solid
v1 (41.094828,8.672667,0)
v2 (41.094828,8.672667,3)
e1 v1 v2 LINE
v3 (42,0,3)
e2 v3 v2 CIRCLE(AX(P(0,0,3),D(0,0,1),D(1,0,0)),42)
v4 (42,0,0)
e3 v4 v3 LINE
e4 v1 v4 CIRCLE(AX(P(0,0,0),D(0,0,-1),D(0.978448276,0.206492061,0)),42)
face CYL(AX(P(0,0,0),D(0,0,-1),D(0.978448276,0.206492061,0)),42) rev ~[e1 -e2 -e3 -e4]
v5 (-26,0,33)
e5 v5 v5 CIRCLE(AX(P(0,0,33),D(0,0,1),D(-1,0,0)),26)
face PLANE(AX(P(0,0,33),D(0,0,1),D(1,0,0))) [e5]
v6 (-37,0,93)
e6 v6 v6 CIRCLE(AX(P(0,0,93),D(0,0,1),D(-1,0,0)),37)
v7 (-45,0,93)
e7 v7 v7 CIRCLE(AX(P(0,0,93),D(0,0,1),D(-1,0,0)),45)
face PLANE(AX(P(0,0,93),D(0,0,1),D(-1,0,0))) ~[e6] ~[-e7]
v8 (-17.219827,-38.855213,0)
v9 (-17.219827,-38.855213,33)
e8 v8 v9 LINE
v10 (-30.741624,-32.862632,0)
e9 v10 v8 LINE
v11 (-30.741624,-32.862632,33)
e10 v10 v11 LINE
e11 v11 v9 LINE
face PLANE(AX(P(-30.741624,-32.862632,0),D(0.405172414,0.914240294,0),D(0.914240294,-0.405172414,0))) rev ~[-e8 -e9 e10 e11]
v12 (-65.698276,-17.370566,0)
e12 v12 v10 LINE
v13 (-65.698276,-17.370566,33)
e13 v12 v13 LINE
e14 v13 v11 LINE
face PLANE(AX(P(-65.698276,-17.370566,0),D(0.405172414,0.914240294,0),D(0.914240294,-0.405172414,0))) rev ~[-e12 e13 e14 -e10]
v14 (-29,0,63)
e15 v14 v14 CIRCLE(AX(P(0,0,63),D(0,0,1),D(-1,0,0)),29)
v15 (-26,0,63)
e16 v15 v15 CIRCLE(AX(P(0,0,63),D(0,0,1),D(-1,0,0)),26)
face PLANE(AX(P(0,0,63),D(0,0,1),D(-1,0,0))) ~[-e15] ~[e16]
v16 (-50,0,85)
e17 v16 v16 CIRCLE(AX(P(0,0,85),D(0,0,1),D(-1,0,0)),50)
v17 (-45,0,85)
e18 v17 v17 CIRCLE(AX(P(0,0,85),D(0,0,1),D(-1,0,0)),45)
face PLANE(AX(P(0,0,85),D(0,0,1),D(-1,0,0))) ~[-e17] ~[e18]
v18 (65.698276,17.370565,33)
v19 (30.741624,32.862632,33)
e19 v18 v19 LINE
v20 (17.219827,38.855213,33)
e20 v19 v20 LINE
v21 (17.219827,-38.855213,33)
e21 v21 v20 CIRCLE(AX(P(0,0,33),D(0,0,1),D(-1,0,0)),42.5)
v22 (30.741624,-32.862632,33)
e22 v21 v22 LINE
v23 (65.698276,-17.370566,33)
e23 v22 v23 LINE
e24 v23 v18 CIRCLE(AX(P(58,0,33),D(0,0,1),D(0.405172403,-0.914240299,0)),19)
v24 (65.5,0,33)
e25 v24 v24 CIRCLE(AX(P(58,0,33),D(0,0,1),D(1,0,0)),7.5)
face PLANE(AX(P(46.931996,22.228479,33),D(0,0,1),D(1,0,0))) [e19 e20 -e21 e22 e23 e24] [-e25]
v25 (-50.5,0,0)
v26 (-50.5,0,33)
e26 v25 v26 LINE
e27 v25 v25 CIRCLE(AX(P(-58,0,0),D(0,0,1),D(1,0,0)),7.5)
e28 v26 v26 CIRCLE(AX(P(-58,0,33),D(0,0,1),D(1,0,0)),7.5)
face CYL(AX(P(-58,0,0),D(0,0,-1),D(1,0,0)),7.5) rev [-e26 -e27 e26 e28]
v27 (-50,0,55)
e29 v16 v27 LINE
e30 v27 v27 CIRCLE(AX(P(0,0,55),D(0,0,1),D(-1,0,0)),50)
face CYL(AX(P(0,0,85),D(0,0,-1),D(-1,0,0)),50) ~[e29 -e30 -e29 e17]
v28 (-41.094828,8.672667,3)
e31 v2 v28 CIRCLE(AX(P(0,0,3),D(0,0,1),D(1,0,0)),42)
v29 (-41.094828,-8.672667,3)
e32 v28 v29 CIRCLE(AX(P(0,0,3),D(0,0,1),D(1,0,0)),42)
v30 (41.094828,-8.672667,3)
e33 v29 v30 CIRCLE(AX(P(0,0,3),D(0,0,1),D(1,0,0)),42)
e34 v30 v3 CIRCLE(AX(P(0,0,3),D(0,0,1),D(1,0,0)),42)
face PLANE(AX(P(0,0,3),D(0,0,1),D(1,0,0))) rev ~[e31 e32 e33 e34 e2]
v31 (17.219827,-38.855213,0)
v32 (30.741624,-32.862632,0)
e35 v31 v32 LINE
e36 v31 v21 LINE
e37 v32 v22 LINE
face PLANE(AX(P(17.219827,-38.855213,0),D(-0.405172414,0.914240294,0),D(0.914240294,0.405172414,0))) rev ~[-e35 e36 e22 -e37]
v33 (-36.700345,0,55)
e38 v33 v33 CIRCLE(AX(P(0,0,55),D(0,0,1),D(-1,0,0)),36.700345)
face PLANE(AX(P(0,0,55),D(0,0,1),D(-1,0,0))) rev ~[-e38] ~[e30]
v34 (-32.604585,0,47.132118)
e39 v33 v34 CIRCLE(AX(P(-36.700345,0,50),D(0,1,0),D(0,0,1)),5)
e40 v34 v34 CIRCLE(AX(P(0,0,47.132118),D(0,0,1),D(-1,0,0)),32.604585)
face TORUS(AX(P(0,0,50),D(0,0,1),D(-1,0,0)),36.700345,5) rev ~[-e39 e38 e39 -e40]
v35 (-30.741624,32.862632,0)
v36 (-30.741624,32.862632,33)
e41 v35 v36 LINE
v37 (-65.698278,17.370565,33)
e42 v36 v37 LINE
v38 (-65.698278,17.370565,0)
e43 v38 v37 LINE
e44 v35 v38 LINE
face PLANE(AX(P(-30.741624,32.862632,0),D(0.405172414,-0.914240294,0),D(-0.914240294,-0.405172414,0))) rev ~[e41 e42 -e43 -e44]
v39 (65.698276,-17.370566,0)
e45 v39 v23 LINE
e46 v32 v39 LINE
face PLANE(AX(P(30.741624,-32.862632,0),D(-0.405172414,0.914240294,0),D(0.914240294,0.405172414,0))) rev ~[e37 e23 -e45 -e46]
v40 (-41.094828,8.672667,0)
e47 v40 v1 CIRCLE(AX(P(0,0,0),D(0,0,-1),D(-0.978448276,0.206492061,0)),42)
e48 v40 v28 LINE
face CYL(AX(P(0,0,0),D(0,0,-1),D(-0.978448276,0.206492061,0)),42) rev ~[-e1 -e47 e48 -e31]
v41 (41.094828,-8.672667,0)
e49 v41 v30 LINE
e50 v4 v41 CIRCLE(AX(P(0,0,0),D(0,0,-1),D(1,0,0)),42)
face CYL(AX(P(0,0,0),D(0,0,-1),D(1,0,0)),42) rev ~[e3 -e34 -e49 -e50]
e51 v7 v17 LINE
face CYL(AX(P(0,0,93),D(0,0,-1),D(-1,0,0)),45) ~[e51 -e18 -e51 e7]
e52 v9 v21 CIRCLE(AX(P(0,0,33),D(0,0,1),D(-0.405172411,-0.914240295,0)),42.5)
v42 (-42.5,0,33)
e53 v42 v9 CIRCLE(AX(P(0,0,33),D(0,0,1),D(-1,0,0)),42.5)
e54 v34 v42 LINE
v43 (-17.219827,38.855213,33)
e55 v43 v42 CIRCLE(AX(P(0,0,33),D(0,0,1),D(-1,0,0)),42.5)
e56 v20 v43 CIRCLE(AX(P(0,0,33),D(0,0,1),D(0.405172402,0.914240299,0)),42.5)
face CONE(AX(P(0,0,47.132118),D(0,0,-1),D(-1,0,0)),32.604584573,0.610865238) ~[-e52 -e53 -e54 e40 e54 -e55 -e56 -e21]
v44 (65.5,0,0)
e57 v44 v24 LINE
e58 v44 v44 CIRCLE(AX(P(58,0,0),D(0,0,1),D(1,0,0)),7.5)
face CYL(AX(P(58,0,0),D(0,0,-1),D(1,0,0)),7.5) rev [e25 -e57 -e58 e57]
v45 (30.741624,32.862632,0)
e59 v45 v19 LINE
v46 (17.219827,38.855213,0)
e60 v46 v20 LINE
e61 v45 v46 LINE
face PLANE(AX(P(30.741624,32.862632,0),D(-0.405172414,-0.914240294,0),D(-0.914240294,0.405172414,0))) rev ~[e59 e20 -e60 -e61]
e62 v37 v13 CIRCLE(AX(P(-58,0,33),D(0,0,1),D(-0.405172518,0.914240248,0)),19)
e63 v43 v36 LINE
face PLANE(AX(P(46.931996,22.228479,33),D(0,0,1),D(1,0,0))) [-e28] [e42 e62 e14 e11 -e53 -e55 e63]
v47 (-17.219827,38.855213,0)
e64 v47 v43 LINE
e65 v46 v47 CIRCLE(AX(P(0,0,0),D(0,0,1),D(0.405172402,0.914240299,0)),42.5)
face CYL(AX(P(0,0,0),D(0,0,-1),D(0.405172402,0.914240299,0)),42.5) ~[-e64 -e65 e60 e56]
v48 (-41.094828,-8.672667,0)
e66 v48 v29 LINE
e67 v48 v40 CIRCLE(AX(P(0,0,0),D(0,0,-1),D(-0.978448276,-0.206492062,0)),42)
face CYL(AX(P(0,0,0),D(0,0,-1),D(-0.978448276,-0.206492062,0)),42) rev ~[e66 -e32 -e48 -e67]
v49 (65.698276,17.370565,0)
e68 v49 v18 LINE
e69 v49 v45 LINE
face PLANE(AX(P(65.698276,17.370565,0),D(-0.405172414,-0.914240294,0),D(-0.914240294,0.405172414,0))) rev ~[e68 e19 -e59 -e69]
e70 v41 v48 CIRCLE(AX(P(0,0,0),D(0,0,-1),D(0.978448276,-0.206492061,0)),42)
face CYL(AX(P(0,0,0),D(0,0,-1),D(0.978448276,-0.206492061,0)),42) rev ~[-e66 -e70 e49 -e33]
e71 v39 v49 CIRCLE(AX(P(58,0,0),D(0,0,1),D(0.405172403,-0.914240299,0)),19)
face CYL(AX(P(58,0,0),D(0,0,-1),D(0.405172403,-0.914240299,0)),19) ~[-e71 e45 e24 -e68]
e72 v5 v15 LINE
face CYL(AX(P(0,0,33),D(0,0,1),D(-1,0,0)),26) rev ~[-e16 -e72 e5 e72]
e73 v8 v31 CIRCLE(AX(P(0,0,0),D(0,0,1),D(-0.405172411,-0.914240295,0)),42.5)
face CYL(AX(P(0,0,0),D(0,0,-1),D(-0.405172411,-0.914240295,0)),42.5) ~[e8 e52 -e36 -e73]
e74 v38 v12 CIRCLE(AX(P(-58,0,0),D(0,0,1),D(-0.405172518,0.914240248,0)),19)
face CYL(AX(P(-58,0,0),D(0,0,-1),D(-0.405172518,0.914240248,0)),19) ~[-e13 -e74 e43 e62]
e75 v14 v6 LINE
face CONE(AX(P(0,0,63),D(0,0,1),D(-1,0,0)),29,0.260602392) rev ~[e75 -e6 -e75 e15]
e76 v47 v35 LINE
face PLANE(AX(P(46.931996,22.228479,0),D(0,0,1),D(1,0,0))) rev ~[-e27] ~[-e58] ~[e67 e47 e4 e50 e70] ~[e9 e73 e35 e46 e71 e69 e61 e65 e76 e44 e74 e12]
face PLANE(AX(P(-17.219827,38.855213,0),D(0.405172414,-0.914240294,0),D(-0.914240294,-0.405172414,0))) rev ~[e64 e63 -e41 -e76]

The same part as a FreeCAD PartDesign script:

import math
import FreeCAD as App
import Part
import Sketcher
from FreeCAD import Vector
Q = App.Units.Quantity

doc = App.newDocument("Part")
body = doc.addObject("PartDesign::Body", "Body")

sketch1 = body.newObject("Sketcher::SketchObject", "Sketch")
sketch1.AttachmentSupport = (doc.getObject("XZ_Plane"), [""])
sketch1.MapMode = "FlatFace"
sketch1.addGeometry([
    Part.LineSegment(Vector(-32.6, 47.1, 0), Vector(-42.5, 33, 0)),
    Part.LineSegment(Vector(-42.5, 33, 0), Vector(-26, 33, 0)),
    Part.LineSegment(Vector(-26, 33, 0), Vector(-26, 63, 0)),
    Part.LineSegment(Vector(-26, 63, 0), Vector(-29, 63, 0)),
    Part.LineSegment(Vector(-29, 63, 0), Vector(-37, 93, 0)),
    Part.LineSegment(Vector(-37, 93, 0), Vector(-45, 93, 0)),
    Part.LineSegment(Vector(-45, 93, 0), Vector(-45, 85, 0)),
    Part.LineSegment(Vector(-45, 85, 0), Vector(-50, 85, 0)),
    Part.LineSegment(Vector(-50, 85, 0), Vector(-50, 55, 0)),
    Part.LineSegment(Vector(-50, 55, 0), Vector(-36.7, 55, 0)),
    Part.ArcOfCircle(Part.Circle(Vector(-36.7, 50, 0), Vector(0, 0, 1), 5), math.radians(-35), math.radians(90)),
], False)
sketch1.addConstraint([
    Sketcher.Constraint("Coincident", 0, 2, 1, 1),
    Sketcher.Constraint("Coincident", 1, 2, 2, 1),
    Sketcher.Constraint("Coincident", 2, 2, 3, 1),
    Sketcher.Constraint("Coincident", 3, 2, 4, 1),
    Sketcher.Constraint("Coincident", 4, 2, 5, 1),
    Sketcher.Constraint("Coincident", 5, 2, 6, 1),
    Sketcher.Constraint("Coincident", 6, 2, 7, 1),
    Sketcher.Constraint("Coincident", 7, 2, 8, 1),
    Sketcher.Constraint("Coincident", 8, 2, 9, 1),
    Sketcher.Constraint("Tangent", 9, 2, 10, 2),
    Sketcher.Constraint("Tangent", 10, 1, 0, 1),
    Sketcher.Constraint("Horizontal", 1),
    Sketcher.Constraint("Vertical", 2),
    Sketcher.Constraint("Horizontal", 3),
    Sketcher.Constraint("Horizontal", 5),
    Sketcher.Constraint("Vertical", 6),
    Sketcher.Constraint("Horizontal", 7),
    Sketcher.Constraint("Vertical", 8),
    Sketcher.Constraint("Horizontal", 9),
    Sketcher.Constraint("Equal", 5, 6),
    Sketcher.Constraint("Equal", 2, 8),
    Sketcher.Constraint("Radius", 10, 5.0),
    Sketcher.Constraint("DistanceX", 3, 2, 3, 1, 3.0),
    Sketcher.Constraint("DistanceX", 5, 2, 5, 1, 8.0),
    Sketcher.Constraint("DistanceX", 7, 2, 7, 1, 5.0),
    Sketcher.Constraint("DistanceY", 2, 1, 2, 2, 30.0),
    Sketcher.Constraint("Angle", 0, Q("-125 deg")),
    Sketcher.Constraint("DistanceX", 1, 1, 1, 2, 16.5),
    Sketcher.Constraint("DistanceY", -1, 1, 10, 3, 50.0),
    Sketcher.Constraint("DistanceY", -1, 1, 0, 2, 33.0),
    Sketcher.Constraint("DistanceX", 1, 2, -1, 1, 26.0),
    Sketcher.Constraint("DistanceX", 4, 2, -1, 1, 37.0),
])
revolution = body.newObject("PartDesign::Revolution", "Revolution")
revolution.Profile = sketch1
revolution.ReferenceAxis = (sketch1, ["V_Axis"])
revolution.Angle = 360

sketch2 = body.newObject("Sketcher::SketchObject", "Sketch001")
sketch2.AttachmentSupport = (doc.getObject("XY_Plane"), [""])
sketch2.MapMode = "FlatFace"
sketch2.addGeometry([
    Part.LineSegment(Vector(66, 17, 0), Vector(31, 33, 0)),
    Part.LineSegment(Vector(31, 33, 0), Vector(17, 39, 0)),
    Part.ArcOfCircle(Part.Circle(Vector(0, 0, 0), Vector(0, 0, 1), 42), math.radians(66), math.radians(114)),
    Part.LineSegment(Vector(-17, 39, 0), Vector(-31, 33, 0)),
    Part.LineSegment(Vector(-31, 33, 0), Vector(-66, 17, 0)),
    Part.ArcOfCircle(Part.Circle(Vector(-58, 0, 0), Vector(0, 0, 1), 19), math.radians(114), math.radians(246)),
    Part.LineSegment(Vector(-66, -17, 0), Vector(-31, -33, 0)),
    Part.LineSegment(Vector(-31, -33, 0), Vector(-17, -39, 0)),
    Part.ArcOfCircle(Part.Circle(Vector(0, 0, 0), Vector(0, 0, 1), 42), math.radians(-114), math.radians(-66)),
    Part.LineSegment(Vector(17, -39, 0), Vector(31, -33, 0)),
    Part.LineSegment(Vector(31, -33, 0), Vector(66, -17, 0)),
    Part.ArcOfCircle(Part.Circle(Vector(58, 0, 0), Vector(0, 0, 1), 19), math.radians(-66), math.radians(66)),
    Part.ArcOfCircle(Part.Circle(Vector(0, 0, 0), Vector(0, 0, 1), 42), math.radians(-168), math.radians(-12)),
    Part.ArcOfCircle(Part.Circle(Vector(0, 0, 0), Vector(0, 0, 1), 42), math.radians(168), math.radians(192)),
    Part.ArcOfCircle(Part.Circle(Vector(0, 0, 0), Vector(0, 0, 1), 42), math.radians(12), math.radians(168)),
    Part.ArcOfCircle(Part.Circle(Vector(0, 0, 0), Vector(0, 0, 1), 42), math.radians(0), math.radians(11.92)),
    Part.ArcOfCircle(Part.Circle(Vector(0, 0, 0), Vector(0, 0, 1), 42), math.radians(-11.92), math.radians(0)),
    Part.Circle(Vector(58, 0, 0), Vector(0, 0, 1), 8),
    Part.Circle(Vector(-58, 0, 0), Vector(0, 0, 1), 8),
], False)
sketch2.addConstraint([
    Sketcher.Constraint("Coincident", 0, 2, 1, 1),
    Sketcher.Constraint("Tangent", 1, 2, 2, 1),
    Sketcher.Constraint("Tangent", 2, 2, 3, 1),
    Sketcher.Constraint("Coincident", 3, 2, 4, 1),
    Sketcher.Constraint("Tangent", 4, 2, 5, 1),
    Sketcher.Constraint("Tangent", 5, 2, 6, 1),
    Sketcher.Constraint("Coincident", 6, 2, 7, 1),
    Sketcher.Constraint("Tangent", 7, 2, 8, 1),
    Sketcher.Constraint("Tangent", 8, 2, 9, 1),
    Sketcher.Constraint("Coincident", 9, 2, 10, 1),
    Sketcher.Constraint("Tangent", 10, 2, 11, 1),
    Sketcher.Constraint("Tangent", 11, 2, 0, 1),
    Sketcher.Constraint("Tangent", 12, 1, 13, 2),
    Sketcher.Constraint("Tangent", 13, 1, 14, 2),
    Sketcher.Constraint("Tangent", 14, 1, 15, 2),
    Sketcher.Constraint("Tangent", 15, 1, 16, 2),
    Sketcher.Constraint("Tangent", 16, 1, 12, 2),
    Sketcher.Constraint("Coincident", 2, 3, -1, 1),
    Sketcher.Constraint("Coincident", 8, 3, -1, 1),
    Sketcher.Constraint("Coincident", 12, 3, -1, 1),
    Sketcher.Constraint("Coincident", 14, 3, -1, 1),
    Sketcher.Constraint("Coincident", 17, 3, 11, 3),
    Sketcher.Constraint("Coincident", 18, 3, 5, 3),
    Sketcher.Constraint("Equal", 2, 8),
    Sketcher.Constraint("Equal", 5, 11),
    Sketcher.Constraint("Equal", 17, 18),
    Sketcher.Constraint("Symmetric", 5, 3, 11, 3, -1, 1),
    Sketcher.Constraint("Symmetric", 0, 2, 6, 2, -1, 1),
    Sketcher.Constraint("Symmetric", 3, 2, 9, 2, -1, 1),
    Sketcher.Constraint("Symmetric", 0, 2, 3, 2, -2),
    Sketcher.Constraint("PointOnObject", 5, 3, -1),
    Sketcher.Constraint("PointOnObject", 15, 1, -1),
    Sketcher.Constraint("Parallel", 0, 1),
    Sketcher.Constraint("Horizontal", 13, 1, 14, 1),
    Sketcher.Constraint("Horizontal", 12, 1, 16, 1),
    Sketcher.Constraint("Vertical", 12, 1, 13, 1),
    Sketcher.Constraint("Diameter", 17, 15.0),
    Sketcher.Constraint("Radius", 5, 19.0),
    Sketcher.Constraint("Radius", 12, 42.0),
    Sketcher.Constraint("Radius", 2, 42.5),
    Sketcher.Constraint("DistanceX", 5, 3, -1, 1, 58.0),
    Sketcher.Constraint("Distance", 1, 14.7902),
    Sketcher.Constraint("DistanceY", 5, 2, 12, 1, 8.697899),
])
pad1 = body.newObject("PartDesign::Pad", "Pad")
pad1.Profile = sketch2
pad1.Length = 33

sketch3 = body.newObject("Sketcher::SketchObject", "Sketch002")
sketch3.AttachmentSupport = (doc.getObject("XY_Plane"), [""])
sketch3.MapMode = "FlatFace"
sketch3.AttachmentOffset = App.Placement(Vector(0, 0, 3), App.Rotation())
sketch3.addGeometry(Part.Circle(Vector(0, 0, 0), Vector(0, 0, 1), 42), False)
sketch3.addConstraint([
    Sketcher.Constraint("Coincident", 0, 3, -1, 1),
    Sketcher.Constraint("Diameter", 0, 84.0),
])
pad2 = body.newObject("PartDesign::Pad", "Pad001")
pad2.Profile = sketch3
pad2.Length = 30

doc.recompute()
